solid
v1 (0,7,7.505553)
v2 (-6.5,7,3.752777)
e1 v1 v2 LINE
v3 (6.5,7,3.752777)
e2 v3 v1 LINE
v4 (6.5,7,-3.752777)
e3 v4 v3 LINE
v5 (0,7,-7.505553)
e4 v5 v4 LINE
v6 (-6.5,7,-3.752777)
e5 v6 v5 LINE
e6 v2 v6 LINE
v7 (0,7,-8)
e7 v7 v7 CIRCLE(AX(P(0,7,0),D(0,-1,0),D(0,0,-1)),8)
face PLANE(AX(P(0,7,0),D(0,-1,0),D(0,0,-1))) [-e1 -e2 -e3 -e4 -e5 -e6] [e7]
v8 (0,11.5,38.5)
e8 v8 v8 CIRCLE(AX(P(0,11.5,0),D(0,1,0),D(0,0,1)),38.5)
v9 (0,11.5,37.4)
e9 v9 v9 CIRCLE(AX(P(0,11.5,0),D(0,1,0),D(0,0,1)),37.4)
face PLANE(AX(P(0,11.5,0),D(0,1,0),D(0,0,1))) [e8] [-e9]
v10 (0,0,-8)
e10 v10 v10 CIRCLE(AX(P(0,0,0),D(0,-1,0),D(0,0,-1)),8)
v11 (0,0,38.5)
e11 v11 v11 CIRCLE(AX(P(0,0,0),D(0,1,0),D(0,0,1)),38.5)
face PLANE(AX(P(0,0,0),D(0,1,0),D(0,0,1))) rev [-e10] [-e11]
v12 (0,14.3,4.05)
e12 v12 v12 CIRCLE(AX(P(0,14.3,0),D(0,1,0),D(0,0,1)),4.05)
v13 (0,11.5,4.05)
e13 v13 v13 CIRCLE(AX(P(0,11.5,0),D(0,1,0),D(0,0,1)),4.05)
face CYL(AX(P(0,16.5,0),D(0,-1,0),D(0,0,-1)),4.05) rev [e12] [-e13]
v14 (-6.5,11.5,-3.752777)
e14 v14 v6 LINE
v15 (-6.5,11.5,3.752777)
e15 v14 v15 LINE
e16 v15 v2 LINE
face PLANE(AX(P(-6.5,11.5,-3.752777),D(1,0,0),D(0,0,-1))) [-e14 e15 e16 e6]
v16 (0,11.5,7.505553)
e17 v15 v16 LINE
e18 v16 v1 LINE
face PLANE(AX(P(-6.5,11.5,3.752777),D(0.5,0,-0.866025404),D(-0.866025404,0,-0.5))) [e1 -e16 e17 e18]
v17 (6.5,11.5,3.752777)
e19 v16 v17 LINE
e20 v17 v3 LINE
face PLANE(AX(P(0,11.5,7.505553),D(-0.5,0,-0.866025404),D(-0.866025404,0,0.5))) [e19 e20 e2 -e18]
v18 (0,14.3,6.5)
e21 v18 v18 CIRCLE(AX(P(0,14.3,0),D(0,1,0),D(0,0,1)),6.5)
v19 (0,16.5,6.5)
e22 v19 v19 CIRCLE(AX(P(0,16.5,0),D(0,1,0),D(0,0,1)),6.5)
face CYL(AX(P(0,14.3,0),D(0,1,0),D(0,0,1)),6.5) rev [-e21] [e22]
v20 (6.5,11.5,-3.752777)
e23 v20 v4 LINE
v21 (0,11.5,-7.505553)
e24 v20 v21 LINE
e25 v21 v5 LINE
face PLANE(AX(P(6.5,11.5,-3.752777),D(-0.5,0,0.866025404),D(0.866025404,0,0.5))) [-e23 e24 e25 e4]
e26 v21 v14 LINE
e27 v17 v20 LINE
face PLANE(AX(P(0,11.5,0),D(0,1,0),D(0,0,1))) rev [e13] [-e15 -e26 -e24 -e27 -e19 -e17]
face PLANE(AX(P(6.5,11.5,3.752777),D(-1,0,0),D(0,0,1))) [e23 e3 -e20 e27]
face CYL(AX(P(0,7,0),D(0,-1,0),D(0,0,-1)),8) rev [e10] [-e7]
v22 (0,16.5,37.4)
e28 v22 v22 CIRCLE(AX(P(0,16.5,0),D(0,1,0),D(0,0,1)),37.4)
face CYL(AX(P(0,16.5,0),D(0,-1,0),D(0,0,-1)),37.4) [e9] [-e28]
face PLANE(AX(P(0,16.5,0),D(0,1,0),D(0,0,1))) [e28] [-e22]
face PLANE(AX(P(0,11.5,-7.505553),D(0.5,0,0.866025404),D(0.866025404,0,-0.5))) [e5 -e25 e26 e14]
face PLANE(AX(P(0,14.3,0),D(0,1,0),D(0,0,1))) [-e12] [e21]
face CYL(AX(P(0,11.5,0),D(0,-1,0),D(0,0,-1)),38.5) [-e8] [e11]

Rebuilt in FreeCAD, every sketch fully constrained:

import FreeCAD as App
import Part
import Sketcher
from FreeCAD import Vector
Q = App.Units.Quantity

doc = App.newDocument("Part")
body = doc.addObject("PartDesign::Body", "Body")

# Sketch on XZ plane
sketch1 = body.newObject("Sketcher::SketchObject", "Sketch")
sketch1.AttachmentSupport = (doc.getObject("XZ_Plane"), [""])
sketch1.MapMode = "FlatFace"
sketch1.addGeometry(Part.Circle(Vector(0, 0, 0), Vector(0, 0, 1), 38), False)
sketch1.addGeometry(Part.LineSegment(Vector(-6, -4, 0), Vector(0, -8, 0)), False)
sketch1.addGeometry(Part.LineSegment(Vector(0, -8, 0), Vector(6, -4, 0)), False)
sketch1.addGeometry(Part.LineSegment(Vector(6, -4, 0), Vector(6, 4, 0)), False)
sketch1.addGeometry(Part.LineSegment(Vector(6, 4, 0), Vector(0, 8, 0)), False)
sketch1.addGeometry(Part.LineSegment(Vector(0, 8, 0), Vector(-6, 4, 0)), False)
sketch1.addGeometry(Part.LineSegment(Vector(-6, 4, 0), Vector(-6, -4, 0)), False)
sketch1.addConstraint(Sketcher.Constraint("Coincident", 1, 2, 2, 1))
sketch1.addConstraint(Sketcher.Constraint("Coincident", 2, 2, 3, 1))
sketch1.addConstraint(Sketcher.Constraint("Coincident", 3, 2, 4, 1))
sketch1.addConstraint(Sketcher.Constraint("Coincident", 4, 2, 5, 1))
sketch1.addConstraint(Sketcher.Constraint("Coincident", 5, 2, 6, 1))
sketch1.addConstraint(Sketcher.Constraint("Coincident", 6, 2, 1, 1))
sketch1.addConstraint(Sketcher.Constraint("Vertical", 3))
sketch1.addConstraint(Sketcher.Constraint("Vertical", 6))
sketch1.addConstraint(Sketcher.Constraint("Coincident", 0, 3, -1, 1))
sketch1.addConstraint(Sketcher.Constraint("Symmetric", 1, 2, 4, 2, -1, 1))
sketch1.addConstraint(Sketcher.Constraint("Symmetric", 2, 2, 5, 2, -1, 1))
sketch1.addConstraint(Sketcher.Constraint("PointOnObject", 1, 2, -2))
sketch1.addConstraint(Sketcher.Constraint("Parallel", 1, 4))
sketch1.addConstraint(Sketcher.Constraint("Horizontal", 3, 2, 5, 2))
sketch1.addConstraint(Sketcher.Constraint("Diameter", 0, 77.0))
sketch1.addConstraint(Sketcher.Constraint("Angle", 1, Q("-30 deg")))
sketch1.addConstraint(Sketcher.Constraint("DistanceX", 5, 2, 3, 2, 13.0))
sketch1.addConstraint(Sketcher.Constraint("DistanceY", 3, 1, 3, 2, 7.505554))
pad1 = body.newObject("PartDesign::Pad", "Pad")
pad1.Profile = sketch1
pad1.Length = 11.5
pad1.Reversed = True

# Sketch on XZ plane
sketch2 = body.newObject("Sketcher::SketchObject", "Sketch001")
sketch2.AttachmentSupport = (doc.getObject("XZ_Plane"), [""])
sketch2.MapMode = "FlatFace"
sketch2.AttachmentOffset = App.Placement(Vector(0, 0, -11.5), App.Rotation())
sketch2.addGeometry(Part.Circle(Vector(0, 0, 0), Vector(0, 0, 1), 37.4), False)
sketch2.addGeometry(Part.Circle(Vector(0, 0, 0), Vector(0, 0, 1), 4), False)
sketch2.addConstraint(Sketcher.Constraint("Coincident", 0, 3, -1, 1))
sketch2.addConstraint(Sketcher.Constraint("Coincident", 1, 3, -1, 1))
sketch2.addConstraint(Sketcher.Constraint("Diameter", 0, 74.8))
sketch2.addConstraint(Sketcher.Constraint("Diameter", 1, 8.1))
pad2 = body.newObject("PartDesign::Pad", "Pad001")
pad2.Profile = sketch2
pad2.Length = 5
pad2.Reversed = True

# Sketch on XZ plane
sketch3 = body.newObject("Sketcher::SketchObject", "Sketch002")
sketch3.AttachmentSupport = (doc.getObject("XZ_Plane"), [""])
sketch3.MapMode = "FlatFace"
sketch3.addGeometry(Part.Circle(Vector(0, 0, 0), Vector(0, 0, 1), 8), False)
sketch3.addConstraint(Sketcher.Constraint("Coincident", 0, 3, -1, 1))
sketch3.addConstraint(Sketcher.Constraint("Diameter", 0, 16.0))
pocket1 = body.newObject("PartDesign::Pocket", "Pocket")
pocket1.Profile = sketch3
pocket1.Length = 7

# Sketch on XZ plane
sketch4 = body.newObject("Sketcher::SketchObject", "Sketch003")
sketch4.AttachmentSupport = (doc.getObject("XZ_Plane"), [""])
sketch4.MapMode = "FlatFace"
sketch4.AttachmentOffset = App.Placement(Vector(0, 0, -16.5), App.Rotation())
sketch4.addGeometry(Part.Circle(Vector(0, 0, 0), Vector(0, 0, 1), 6), False)
sketch4.addConstraint(Sketcher.Constraint("Coincident", 0, 3, -1, 1))
sketch4.addConstraint(Sketcher.Constraint("Diameter", 0, 13.0))
pocket2 = body.newObject("PartDesign::Pocket", "Pocket001")
pocket2.Profile = sketch4
pocket2.Length = 2.2
pocket2.Reversed = True

doc.recompute()
